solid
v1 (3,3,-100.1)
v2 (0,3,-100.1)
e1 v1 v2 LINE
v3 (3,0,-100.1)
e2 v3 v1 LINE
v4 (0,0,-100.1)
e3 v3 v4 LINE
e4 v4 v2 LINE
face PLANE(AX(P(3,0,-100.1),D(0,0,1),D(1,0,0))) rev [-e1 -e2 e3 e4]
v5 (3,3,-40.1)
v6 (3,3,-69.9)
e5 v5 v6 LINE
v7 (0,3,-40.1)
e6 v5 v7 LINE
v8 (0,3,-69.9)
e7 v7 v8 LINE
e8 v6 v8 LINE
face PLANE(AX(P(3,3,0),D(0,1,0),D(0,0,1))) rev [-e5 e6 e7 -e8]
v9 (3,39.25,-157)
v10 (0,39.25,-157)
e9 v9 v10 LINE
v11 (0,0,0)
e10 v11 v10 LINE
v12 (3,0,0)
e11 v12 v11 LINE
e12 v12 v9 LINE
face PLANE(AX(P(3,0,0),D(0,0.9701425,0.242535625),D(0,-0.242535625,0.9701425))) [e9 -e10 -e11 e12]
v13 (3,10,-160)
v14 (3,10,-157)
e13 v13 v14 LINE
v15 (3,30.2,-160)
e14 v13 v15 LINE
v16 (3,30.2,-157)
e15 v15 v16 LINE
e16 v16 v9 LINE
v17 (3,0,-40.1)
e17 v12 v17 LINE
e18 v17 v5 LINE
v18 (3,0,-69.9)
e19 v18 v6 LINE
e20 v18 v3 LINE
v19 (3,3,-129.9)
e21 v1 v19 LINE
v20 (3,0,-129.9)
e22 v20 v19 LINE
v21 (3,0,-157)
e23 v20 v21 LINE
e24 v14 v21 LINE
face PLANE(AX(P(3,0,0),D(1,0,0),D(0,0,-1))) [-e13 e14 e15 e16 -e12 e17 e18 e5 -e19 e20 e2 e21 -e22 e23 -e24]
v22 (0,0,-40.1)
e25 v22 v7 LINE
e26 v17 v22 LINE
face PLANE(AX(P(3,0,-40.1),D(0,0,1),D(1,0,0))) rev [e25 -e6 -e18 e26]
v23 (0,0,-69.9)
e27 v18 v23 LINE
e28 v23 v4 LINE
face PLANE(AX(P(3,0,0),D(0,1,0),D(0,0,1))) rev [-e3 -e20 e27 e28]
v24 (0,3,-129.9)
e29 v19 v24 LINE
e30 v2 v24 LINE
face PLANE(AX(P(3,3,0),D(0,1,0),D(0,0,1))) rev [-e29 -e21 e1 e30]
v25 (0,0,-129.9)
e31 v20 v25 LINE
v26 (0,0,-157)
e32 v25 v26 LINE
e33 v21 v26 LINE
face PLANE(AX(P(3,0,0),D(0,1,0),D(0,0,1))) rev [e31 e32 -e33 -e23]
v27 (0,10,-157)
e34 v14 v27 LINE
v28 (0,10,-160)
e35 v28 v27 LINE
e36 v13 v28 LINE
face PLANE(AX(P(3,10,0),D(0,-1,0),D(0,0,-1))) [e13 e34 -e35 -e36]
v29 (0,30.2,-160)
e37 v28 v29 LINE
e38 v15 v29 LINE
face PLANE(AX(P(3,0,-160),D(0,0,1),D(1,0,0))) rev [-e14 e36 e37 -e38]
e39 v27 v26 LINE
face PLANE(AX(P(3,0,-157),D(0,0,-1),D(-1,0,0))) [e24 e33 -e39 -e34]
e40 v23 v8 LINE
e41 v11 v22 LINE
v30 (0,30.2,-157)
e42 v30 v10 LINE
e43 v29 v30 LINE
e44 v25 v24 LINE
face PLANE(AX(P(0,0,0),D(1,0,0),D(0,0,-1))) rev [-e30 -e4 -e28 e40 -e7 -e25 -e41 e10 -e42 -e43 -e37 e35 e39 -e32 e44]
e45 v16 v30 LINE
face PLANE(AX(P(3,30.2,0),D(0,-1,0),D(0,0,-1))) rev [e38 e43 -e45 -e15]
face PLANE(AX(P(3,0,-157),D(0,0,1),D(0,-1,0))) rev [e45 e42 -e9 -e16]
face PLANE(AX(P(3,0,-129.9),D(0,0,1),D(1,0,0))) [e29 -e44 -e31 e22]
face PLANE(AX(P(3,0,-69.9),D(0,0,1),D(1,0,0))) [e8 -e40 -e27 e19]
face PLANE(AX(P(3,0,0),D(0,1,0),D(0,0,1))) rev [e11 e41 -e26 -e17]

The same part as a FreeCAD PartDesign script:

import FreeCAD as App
import Part
import Sketcher
Q = App.Units.Quantity

doc = App.newDocument("Part")
body = doc.addObject("PartDesign::Body", "Body")

sketch1 = body.newObject("Sketcher::SketchObject", "Sketch")
sketch1.AttachmentSupport = (doc.getObject("YZ_Plane"), [""])
sketch1.MapMode = "FlatFace"
sketch1.addGeometry([
    Part.LineSegment(App.Vector(39.25, -157, 0), App.Vector(0, 0, 0)),
    Part.LineSegment(App.Vector(0, 0, 0), App.Vector(0, -40.1, 0)),
    Part.LineSegment(App.Vector(0, -40.1, 0), App.Vector(3, -40.1, 0)),
    Part.LineSegment(App.Vector(3, -40.1, 0), App.Vector(3, -69.9, 0)),
    Part.LineSegment(App.Vector(3, -69.9, 0), App.Vector(0, -69.9, 0)),
    Part.LineSegment(App.Vector(0, -69.9, 0), App.Vector(0, -100.1, 0)),
    Part.LineSegment(App.Vector(0, -100.1, 0), App.Vector(3, -100.1, 0)),
    Part.LineSegment(App.Vector(3, -100.1, 0), App.Vector(3, -129.9, 0)),
    Part.LineSegment(App.Vector(3, -129.9, 0), App.Vector(0, -129.9, 0)),
    Part.LineSegment(App.Vector(0, -129.9, 0), App.Vector(0, -157, 0)),
    Part.LineSegment(App.Vector(0, -157, 0), App.Vector(10, -157, 0)),
    Part.LineSegment(App.Vector(10, -157, 0), App.Vector(10, -160, 0)),
    Part.LineSegment(App.Vector(10, -160, 0), App.Vector(30.2, -160, 0)),
    Part.LineSegment(App.Vector(30.2, -160, 0), App.Vector(30.2, -157, 0)),
    Part.LineSegment(App.Vector(30.2, -157, 0), App.Vector(39.25, -157, 0)),
], False)
sketch1.addConstraint([
    Sketcher.Constraint("Coincident", 0, 2, 1, 1),
    Sketcher.Constraint("Coincident", 1, 2, 2, 1),
    Sketcher.Constraint("Coincident", 2, 2, 3, 1),
    Sketcher.Constraint("Coincident", 3, 2, 4, 1),
    Sketcher.Constraint("Coincident", 4, 2, 5, 1),
    Sketcher.Constraint("Coincident", 5, 2, 6, 1),
    Sketcher.Constraint("Coincident", 6, 2, 7, 1),
    Sketcher.Constraint("Coincident", 7, 2, 8, 1),
    Sketcher.Constraint("Coincident", 8, 2, 9, 1),
    Sketcher.Constraint("Coincident", 9, 2, 10, 1),
    Sketcher.Constraint("Coincident", 10, 2, 11, 1),
    Sketcher.Constraint("Coincident", 11, 2, 12, 1),
    Sketcher.Constraint("Coincident", 12, 2, 13, 1),
    Sketcher.Constraint("Coincident", 13, 2, 14, 1),
    Sketcher.Constraint("Coincident", 14, 2, 0, 1),
    Sketcher.Constraint("Vertical", 1),
    Sketcher.Constraint("Horizontal", 2),
    Sketcher.Constraint("Vertical", 3),
    Sketcher.Constraint("Horizontal", 4),
    Sketcher.Constraint("Vertical", 5),
    Sketcher.Constraint("Horizontal", 6),
    Sketcher.Constraint("Vertical", 7),
    Sketcher.Constraint("Horizontal", 8),
    Sketcher.Constraint("Vertical", 9),
    Sketcher.Constraint("Horizontal", 10),
    Sketcher.Constraint("Vertical", 11),
    Sketcher.Constraint("Horizontal", 12),
    Sketcher.Constraint("Vertical", 13),
    Sketcher.Constraint("Horizontal", 14),
    Sketcher.Constraint("Coincident", 0, 2, -1, 1),
    Sketcher.Constraint("PointOnObject", 4, 2, -2),
    Sketcher.Constraint("PointOnObject", 8, 2, -2),
    Sketcher.Constraint("Horizontal", 10, 2, 13, 2),
    Sketcher.Constraint("Vertical", 3, 2, 6, 2),
    Sketcher.Constraint("Equal", 3, 7),
    Sketcher.Constraint("Equal", 8, 11),
    Sketcher.Constraint("DistanceX", 2, 1, 2, 2, Q("3 mm")),
    Sketcher.Constraint("DistanceX", 10, 1, 10, 2, Q("10 mm")),
    Sketcher.Constraint("DistanceX", 12, 1, 12, 2, Q("20.2 mm")),
    Sketcher.Constraint("DistanceY", 1, 2, 1, 1, Q("40.1 mm")),
    Sketcher.Constraint("DistanceY", 3, 2, 3, 1, Q("29.8 mm")),
    Sketcher.Constraint("DistanceY", 5, 2, 5, 1, Q("30.2 mm")),
    Sketcher.Constraint("DistanceY", 9, 2, 9, 1, Q("27.1 mm")),
    Sketcher.Constraint("DistanceX", 14, 1, 14, 2, Q("9.05 mm")),
])
pad1 = body.newObject("PartDesign::Pad", "Pad")
pad1.Profile = sketch1
pad1.Length = 3

doc.recompute()
